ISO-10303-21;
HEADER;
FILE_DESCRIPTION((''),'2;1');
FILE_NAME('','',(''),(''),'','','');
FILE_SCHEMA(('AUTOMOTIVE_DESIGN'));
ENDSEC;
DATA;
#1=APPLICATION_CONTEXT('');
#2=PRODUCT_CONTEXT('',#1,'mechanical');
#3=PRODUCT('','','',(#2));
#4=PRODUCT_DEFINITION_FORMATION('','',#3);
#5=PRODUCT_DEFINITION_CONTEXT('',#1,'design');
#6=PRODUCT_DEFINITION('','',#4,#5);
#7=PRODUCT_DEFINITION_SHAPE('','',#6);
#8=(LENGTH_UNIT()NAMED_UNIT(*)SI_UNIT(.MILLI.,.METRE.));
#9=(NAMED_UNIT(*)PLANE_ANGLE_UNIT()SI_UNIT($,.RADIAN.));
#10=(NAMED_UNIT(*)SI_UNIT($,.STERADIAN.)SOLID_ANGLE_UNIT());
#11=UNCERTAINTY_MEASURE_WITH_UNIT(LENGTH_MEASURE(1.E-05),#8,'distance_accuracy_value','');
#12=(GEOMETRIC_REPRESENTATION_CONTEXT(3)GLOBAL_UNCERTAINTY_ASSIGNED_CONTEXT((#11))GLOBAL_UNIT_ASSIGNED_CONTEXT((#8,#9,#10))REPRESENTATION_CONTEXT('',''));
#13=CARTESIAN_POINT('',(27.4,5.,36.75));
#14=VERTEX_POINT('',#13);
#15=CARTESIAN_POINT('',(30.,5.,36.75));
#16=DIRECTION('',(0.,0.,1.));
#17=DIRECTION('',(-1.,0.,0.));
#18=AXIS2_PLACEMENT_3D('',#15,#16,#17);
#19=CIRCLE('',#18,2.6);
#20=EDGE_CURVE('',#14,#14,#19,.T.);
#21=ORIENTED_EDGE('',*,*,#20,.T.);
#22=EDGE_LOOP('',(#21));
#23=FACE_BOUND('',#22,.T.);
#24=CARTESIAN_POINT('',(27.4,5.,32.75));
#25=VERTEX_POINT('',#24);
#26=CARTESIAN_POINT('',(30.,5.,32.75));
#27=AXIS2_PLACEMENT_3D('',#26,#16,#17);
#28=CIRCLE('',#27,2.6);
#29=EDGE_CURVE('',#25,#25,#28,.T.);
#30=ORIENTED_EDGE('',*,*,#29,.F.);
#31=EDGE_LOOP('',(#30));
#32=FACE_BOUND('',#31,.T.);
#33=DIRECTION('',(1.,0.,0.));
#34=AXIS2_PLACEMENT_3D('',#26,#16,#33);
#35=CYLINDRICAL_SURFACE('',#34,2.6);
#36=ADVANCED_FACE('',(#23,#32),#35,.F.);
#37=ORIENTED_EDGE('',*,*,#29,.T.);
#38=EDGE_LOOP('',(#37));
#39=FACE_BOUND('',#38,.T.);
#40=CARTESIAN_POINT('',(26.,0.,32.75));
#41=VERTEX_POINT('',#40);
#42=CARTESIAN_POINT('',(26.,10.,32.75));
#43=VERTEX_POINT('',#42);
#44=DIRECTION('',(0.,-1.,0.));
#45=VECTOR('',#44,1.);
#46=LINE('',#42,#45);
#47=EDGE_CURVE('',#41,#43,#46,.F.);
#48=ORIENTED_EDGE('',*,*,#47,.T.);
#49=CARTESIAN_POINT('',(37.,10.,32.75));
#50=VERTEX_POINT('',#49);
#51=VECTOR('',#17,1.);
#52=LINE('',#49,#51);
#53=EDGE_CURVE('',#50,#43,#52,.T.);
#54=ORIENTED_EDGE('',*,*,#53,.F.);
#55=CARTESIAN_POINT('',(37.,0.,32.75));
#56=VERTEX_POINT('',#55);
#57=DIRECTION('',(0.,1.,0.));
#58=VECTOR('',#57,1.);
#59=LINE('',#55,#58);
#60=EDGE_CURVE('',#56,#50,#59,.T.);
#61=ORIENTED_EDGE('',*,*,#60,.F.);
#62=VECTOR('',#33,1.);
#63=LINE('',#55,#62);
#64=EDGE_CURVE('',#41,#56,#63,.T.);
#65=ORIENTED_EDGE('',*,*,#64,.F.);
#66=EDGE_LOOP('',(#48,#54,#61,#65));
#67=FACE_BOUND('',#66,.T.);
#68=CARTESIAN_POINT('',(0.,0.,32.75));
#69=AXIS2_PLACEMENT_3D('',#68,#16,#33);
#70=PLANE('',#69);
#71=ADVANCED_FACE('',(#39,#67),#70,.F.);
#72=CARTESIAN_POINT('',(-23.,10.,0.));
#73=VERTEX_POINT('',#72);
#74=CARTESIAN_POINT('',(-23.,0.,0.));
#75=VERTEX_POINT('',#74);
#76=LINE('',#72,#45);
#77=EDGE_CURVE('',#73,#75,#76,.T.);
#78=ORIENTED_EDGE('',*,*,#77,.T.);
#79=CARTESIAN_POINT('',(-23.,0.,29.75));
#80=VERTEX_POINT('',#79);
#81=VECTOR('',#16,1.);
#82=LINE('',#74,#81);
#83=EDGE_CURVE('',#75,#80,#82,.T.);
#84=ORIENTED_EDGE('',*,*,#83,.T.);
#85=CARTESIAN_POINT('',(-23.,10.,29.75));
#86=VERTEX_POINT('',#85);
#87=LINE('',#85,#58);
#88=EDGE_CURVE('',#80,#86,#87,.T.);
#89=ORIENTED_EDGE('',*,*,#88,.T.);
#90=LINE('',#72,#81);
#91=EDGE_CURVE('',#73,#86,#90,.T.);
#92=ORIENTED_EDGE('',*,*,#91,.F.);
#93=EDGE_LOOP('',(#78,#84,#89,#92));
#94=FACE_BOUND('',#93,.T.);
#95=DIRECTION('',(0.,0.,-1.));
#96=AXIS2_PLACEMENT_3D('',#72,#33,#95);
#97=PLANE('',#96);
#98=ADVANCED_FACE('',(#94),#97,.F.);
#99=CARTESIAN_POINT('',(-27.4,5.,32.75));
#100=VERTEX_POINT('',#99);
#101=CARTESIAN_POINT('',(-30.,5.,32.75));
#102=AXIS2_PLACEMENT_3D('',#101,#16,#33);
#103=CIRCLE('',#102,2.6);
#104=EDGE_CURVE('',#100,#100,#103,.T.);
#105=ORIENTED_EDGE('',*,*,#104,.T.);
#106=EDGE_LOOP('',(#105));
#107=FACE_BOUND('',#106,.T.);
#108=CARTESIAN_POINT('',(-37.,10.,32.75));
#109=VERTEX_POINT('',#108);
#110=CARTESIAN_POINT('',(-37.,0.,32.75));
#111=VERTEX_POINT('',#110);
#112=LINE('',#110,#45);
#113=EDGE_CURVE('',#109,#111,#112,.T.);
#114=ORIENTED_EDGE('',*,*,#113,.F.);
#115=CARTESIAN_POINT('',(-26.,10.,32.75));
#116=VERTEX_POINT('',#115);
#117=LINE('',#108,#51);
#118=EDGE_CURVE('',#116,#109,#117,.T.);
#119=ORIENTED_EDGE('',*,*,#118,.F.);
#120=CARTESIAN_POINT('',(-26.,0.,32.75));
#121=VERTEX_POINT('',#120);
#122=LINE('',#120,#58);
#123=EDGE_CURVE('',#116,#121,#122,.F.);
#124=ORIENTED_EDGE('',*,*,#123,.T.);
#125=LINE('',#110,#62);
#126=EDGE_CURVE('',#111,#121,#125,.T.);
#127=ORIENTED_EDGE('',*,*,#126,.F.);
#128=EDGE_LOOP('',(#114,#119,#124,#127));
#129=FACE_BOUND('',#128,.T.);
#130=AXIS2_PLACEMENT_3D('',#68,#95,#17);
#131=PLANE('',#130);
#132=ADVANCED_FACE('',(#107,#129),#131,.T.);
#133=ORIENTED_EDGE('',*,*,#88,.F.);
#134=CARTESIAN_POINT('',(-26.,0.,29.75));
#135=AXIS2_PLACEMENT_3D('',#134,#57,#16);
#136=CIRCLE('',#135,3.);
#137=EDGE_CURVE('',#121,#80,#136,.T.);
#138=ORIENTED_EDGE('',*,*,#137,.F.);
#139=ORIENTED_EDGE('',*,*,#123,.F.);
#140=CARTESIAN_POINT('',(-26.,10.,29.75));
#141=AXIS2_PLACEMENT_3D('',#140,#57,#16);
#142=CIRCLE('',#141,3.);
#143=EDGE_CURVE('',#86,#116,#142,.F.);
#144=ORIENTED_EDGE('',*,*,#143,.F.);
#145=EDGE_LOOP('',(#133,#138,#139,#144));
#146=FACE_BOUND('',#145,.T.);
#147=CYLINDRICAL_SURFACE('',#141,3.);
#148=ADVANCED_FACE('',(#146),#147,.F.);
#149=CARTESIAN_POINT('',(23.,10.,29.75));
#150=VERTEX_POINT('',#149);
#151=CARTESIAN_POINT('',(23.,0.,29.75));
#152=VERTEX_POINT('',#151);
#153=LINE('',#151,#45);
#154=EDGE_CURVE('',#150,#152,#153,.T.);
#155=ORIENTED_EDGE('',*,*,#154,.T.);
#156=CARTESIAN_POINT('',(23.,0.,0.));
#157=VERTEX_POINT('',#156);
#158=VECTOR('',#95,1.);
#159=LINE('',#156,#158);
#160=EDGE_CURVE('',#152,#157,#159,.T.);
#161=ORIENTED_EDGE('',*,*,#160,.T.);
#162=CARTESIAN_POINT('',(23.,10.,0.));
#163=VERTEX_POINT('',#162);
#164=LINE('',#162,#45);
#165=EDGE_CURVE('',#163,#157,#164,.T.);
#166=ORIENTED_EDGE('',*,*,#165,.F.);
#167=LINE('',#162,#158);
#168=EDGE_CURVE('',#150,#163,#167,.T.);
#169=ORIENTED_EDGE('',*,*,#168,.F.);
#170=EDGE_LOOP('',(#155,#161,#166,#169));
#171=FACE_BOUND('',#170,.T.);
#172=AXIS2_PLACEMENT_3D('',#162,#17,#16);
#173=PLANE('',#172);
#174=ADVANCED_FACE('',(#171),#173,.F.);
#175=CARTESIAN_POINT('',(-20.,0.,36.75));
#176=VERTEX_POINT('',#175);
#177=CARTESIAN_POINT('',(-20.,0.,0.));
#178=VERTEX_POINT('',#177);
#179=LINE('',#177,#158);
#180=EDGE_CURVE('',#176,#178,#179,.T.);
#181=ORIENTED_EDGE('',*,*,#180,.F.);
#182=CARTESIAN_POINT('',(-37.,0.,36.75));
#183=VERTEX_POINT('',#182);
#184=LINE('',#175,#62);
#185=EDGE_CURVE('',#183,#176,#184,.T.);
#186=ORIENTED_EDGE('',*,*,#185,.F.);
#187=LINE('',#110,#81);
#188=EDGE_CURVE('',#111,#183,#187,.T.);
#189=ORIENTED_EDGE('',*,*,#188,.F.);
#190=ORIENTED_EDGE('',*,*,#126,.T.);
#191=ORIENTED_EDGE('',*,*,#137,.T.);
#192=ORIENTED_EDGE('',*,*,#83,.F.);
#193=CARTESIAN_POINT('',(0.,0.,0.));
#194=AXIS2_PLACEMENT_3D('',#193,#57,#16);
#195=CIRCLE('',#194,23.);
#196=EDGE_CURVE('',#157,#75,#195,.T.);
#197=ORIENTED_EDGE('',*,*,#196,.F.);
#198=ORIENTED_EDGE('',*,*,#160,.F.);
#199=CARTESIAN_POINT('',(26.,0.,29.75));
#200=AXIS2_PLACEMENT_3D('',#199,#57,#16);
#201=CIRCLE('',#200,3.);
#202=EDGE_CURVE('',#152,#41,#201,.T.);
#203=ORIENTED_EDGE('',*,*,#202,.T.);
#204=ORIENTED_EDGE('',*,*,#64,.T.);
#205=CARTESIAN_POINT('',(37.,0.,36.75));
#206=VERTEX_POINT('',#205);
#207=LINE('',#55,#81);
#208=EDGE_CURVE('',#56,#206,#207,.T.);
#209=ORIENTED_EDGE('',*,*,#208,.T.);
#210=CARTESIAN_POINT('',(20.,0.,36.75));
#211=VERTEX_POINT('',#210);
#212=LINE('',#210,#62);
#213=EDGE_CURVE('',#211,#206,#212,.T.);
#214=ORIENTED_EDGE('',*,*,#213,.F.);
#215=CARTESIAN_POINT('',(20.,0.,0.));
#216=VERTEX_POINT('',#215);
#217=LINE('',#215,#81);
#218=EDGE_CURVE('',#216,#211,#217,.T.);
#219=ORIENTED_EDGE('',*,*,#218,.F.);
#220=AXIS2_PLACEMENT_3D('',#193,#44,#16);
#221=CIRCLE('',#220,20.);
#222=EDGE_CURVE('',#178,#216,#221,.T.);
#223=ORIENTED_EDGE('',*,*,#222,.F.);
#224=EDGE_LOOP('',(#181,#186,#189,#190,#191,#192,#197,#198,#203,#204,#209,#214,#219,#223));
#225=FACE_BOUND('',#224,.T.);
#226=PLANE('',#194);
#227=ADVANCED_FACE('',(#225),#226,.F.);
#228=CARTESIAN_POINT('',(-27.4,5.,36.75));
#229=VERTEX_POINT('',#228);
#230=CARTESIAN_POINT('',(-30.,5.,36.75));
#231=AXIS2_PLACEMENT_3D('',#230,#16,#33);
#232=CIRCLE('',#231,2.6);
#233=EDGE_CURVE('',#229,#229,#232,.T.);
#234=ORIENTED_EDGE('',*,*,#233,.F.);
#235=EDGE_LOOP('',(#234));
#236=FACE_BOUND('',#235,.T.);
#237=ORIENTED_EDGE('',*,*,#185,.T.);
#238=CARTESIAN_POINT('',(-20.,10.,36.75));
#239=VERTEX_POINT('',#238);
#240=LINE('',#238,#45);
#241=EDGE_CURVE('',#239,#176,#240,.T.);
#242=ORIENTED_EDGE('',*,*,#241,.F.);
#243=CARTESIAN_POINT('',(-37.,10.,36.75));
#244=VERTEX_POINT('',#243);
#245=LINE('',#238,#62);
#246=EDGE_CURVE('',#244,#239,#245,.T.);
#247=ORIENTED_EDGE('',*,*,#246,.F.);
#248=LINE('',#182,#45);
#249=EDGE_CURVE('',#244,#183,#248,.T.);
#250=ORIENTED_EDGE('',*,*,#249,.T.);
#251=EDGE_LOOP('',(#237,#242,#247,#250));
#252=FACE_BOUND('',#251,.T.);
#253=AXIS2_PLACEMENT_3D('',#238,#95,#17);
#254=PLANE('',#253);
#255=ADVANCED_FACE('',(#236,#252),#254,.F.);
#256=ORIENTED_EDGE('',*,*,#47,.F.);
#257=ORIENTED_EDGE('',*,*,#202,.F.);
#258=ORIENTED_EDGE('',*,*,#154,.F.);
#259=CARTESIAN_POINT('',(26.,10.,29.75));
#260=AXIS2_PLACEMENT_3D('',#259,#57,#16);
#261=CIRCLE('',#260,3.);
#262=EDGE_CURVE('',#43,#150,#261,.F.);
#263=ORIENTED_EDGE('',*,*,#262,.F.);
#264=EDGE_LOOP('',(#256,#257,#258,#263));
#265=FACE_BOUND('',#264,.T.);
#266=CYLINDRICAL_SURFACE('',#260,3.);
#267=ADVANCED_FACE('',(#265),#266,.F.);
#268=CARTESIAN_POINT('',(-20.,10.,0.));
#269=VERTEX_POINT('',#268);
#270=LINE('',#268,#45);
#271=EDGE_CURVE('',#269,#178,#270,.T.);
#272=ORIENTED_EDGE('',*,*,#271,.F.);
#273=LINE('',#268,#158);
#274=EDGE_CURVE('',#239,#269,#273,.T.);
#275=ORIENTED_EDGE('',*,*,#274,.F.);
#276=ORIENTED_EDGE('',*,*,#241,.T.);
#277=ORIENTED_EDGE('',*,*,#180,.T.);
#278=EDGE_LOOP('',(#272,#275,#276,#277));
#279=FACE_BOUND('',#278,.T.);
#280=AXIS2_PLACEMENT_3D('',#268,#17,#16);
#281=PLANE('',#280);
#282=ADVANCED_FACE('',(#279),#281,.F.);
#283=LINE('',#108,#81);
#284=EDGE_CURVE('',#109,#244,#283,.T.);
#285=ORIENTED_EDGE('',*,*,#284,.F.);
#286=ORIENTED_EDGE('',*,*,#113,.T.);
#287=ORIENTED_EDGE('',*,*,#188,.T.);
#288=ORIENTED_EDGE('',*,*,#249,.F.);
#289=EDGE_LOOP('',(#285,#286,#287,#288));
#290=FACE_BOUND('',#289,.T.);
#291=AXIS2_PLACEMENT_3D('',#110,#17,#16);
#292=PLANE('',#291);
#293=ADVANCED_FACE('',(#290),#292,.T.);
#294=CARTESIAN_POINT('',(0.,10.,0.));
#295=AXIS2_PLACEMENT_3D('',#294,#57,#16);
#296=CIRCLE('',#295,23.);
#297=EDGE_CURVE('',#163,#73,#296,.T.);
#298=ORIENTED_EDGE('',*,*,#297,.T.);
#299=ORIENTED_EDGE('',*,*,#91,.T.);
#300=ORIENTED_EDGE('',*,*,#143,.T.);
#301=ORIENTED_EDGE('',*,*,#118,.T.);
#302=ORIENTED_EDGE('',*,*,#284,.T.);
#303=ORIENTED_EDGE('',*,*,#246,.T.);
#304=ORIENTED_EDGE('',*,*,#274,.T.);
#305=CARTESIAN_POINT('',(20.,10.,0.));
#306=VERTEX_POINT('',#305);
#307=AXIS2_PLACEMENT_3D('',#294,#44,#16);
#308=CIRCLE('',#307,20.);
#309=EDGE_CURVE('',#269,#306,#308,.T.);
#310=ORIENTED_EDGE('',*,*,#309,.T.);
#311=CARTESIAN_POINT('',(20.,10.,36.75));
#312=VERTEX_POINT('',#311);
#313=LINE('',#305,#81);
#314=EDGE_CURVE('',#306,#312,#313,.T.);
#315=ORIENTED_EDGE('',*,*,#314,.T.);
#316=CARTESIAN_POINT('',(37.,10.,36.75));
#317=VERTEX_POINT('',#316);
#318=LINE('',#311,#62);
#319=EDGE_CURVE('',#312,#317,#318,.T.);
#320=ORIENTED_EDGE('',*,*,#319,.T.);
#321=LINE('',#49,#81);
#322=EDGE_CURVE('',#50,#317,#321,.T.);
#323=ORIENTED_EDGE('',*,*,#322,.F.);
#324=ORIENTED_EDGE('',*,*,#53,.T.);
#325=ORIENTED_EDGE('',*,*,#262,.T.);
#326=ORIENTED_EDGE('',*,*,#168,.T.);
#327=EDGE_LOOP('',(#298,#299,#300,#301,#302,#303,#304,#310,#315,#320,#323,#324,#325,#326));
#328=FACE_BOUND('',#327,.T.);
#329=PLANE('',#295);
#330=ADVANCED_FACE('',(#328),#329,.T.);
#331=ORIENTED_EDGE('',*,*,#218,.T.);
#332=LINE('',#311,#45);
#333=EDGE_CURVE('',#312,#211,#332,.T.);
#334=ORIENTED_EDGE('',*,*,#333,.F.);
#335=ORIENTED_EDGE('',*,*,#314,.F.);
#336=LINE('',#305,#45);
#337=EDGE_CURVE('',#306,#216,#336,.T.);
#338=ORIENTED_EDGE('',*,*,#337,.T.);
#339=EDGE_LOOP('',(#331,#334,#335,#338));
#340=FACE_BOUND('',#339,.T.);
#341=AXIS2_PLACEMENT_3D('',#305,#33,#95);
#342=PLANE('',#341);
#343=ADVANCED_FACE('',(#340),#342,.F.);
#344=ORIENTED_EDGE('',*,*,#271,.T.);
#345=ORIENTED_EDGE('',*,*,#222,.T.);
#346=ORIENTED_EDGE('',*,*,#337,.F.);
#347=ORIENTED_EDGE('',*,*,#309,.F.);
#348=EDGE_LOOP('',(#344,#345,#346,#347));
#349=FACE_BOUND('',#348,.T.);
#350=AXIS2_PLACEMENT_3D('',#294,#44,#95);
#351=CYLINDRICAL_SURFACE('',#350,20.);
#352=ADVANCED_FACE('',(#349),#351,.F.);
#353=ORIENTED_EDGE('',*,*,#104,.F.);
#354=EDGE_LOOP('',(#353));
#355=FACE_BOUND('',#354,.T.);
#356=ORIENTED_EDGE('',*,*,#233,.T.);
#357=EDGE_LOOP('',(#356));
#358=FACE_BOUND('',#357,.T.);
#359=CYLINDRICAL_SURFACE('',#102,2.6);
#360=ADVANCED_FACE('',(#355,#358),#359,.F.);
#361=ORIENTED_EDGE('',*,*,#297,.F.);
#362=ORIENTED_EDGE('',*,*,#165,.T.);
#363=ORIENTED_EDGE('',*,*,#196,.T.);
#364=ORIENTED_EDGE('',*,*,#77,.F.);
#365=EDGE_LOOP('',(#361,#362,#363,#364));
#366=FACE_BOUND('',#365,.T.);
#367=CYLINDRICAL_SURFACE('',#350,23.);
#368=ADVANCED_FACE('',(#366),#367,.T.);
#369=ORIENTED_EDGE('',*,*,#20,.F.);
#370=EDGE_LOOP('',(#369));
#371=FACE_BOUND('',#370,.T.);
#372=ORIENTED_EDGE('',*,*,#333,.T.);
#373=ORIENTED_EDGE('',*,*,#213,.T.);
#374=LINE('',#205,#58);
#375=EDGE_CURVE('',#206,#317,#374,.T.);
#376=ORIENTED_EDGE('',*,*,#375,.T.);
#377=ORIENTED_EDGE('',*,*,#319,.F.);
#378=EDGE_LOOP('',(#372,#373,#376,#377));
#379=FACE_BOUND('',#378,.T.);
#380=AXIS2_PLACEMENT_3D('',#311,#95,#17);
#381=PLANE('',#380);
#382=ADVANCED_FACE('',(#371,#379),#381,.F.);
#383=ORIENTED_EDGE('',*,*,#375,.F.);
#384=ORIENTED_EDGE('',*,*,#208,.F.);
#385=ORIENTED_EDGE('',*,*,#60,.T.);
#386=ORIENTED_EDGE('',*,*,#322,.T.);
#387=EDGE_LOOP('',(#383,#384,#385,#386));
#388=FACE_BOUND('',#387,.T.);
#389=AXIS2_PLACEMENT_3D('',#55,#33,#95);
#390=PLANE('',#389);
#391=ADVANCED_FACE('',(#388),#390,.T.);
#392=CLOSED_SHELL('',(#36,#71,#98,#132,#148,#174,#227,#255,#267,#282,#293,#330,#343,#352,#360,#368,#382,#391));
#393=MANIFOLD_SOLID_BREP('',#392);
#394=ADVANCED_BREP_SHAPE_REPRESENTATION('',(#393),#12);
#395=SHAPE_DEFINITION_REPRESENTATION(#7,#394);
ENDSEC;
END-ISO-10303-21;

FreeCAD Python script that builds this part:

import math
import FreeCAD as App
import Part
import Sketcher
from FreeCAD import Vector
Q = App.Units.Quantity


def edges_at(feature, points):
    """Names of the edges that pass closest to the given points."""
    edges = feature.Shape.Edges
    near = lambda p: min(range(len(edges)), key=lambda i: edges[i].distToShape(Part.Vertex(*p))[0])
    return sorted({f"Edge{near(p) + 1}" for p in points})

doc = App.newDocument("Part")
body = doc.addObject("PartDesign::Body", "Body")

# Sketch on XZ plane
sketch1 = body.newObject("Sketcher::SketchObject", "Sketch")
sketch1.AttachmentSupport = (doc.getObject("XZ_Plane"), [""])
sketch1.MapMode = "FlatFace"
sketch1.addGeometry([
    Part.LineSegment(Vector(-23, 0, 0), Vector(-23, 36.8, 0)),  # 0
    Part.LineSegment(Vector(-23, 36.8, 0), Vector(-20, 36.8, 0)),  # 1
    Part.LineSegment(Vector(-20, 36.8, 0), Vector(-20, 0, 0)),  # 2
    Part.ArcOfCircle(Part.Circle(Vector(0, 0, 0), Vector(0, 0, 1), 20), math.radians(180), math.radians(360)),  # 3
    Part.LineSegment(Vector(20, 0, 0), Vector(20, 36.8, 0)),  # 4
    Part.LineSegment(Vector(20, 36.8, 0), Vector(23, 36.8, 0)),  # 5
    Part.LineSegment(Vector(23, 36.8, 0), Vector(23, 0, 0)),  # 6
    Part.ArcOfCircle(Part.Circle(Vector(0, 0, 0), Vector(0, 0, 1), 23), math.radians(180), math.radians(360)),  # 7
], False)
sketch1.addConstraint([
    Sketcher.Constraint("Coincident", 0, 2, 1, 1),
    Sketcher.Constraint("Coincident", 1, 2, 2, 1),
    Sketcher.Constraint("Tangent", 2, 2, 3, 1),
    Sketcher.Constraint("Tangent", 3, 2, 4, 1),
    Sketcher.Constraint("Coincident", 4, 2, 5, 1),
    Sketcher.Constraint("Coincident", 5, 2, 6, 1),
    Sketcher.Constraint("Tangent", 6, 2, 7, 2),
    Sketcher.Constraint("Tangent", 7, 1, 0, 1),
    Sketcher.Constraint("Vertical", 0),
    Sketcher.Constraint("Horizontal", 1),
    Sketcher.Constraint("Vertical", 2),
    Sketcher.Constraint("Vertical", 4),
    Sketcher.Constraint("Horizontal", 5),
    Sketcher.Constraint("Vertical", 6),
    Sketcher.Constraint("Coincident", 3, 3, -1, 1),
    Sketcher.Constraint("Coincident", 7, 3, -1, 1),
    Sketcher.Constraint("Horizontal", 1, 2, 4, 2),
    Sketcher.Constraint("Radius", 3, Q("20 mm")),
    Sketcher.Constraint("Radius", 7, Q("23 mm")),
    Sketcher.Constraint("DistanceY", 0, 1, 0, 2, Q("36.75 mm")),
])
pad1 = body.newObject("PartDesign::Pad", "Pad")
pad1.Profile = sketch1
pad1.Length = 10
pad1.Reversed = True

# Sketch on XY plane
sketch2 = body.newObject("Sketcher::SketchObject", "Sketch001")
sketch2.AttachmentSupport = (doc.getObject("XY_Plane"), [""])
sketch2.MapMode = "FlatFace"
sketch2.AttachmentOffset = App.Placement(Vector(0, 0, 36.75), App.Rotation())
sketch2.addGeometry([
    Part.LineSegment(Vector(-37, 10, 0), Vector(-37, 0, 0)),  # 0
    Part.LineSegment(Vector(-37, 0, 0), Vector(-23, 0, 0)),  # 1
    Part.LineSegment(Vector(-23, 0, 0), Vector(-23, 10, 0)),  # 2
    Part.LineSegment(Vector(-23, 10, 0), Vector(-37, 10, 0)),  # 3
    Part.Circle(Vector(-30, 5, 0), Vector(0, 0, 1), 2.6),  # 4
    Part.LineSegment(Vector(23, 10, 0), Vector(23, 0, 0)),  # 5
    Part.LineSegment(Vector(23, 0, 0), Vector(37, 0, 0)),  # 6
    Part.LineSegment(Vector(37, 0, 0), Vector(37, 10, 0)),  # 7
    Part.LineSegment(Vector(37, 10, 0), Vector(23, 10, 0)),  # 8
    Part.Circle(Vector(30, 5, 0), Vector(0, 0, 1), 2.6),  # 9
], False)
sketch2.addConstraint([
    Sketcher.Constraint("Coincident", 0, 2, 1, 1),
    Sketcher.Constraint("Coincident", 1, 2, 2, 1),
    Sketcher.Constraint("Coincident", 2, 2, 3, 1),
    Sketcher.Constraint("Coincident", 3, 2, 0, 1),
    Sketcher.Constraint("Coincident", 5, 2, 6, 1),
    Sketcher.Constraint("Coincident", 6, 2, 7, 1),
    Sketcher.Constraint("Coincident", 7, 2, 8, 1),
    Sketcher.Constraint("Coincident", 8, 2, 5, 1),
    Sketcher.Constraint("Vertical", 0),
    Sketcher.Constraint("Horizontal", 1),
    Sketcher.Constraint("Vertical", 2),
    Sketcher.Constraint("Horizontal", 3),
    Sketcher.Constraint("Vertical", 5),
    Sketcher.Constraint("Horizontal", 6),
    Sketcher.Constraint("Vertical", 7),
    Sketcher.Constraint("Horizontal", 8),
    Sketcher.Constraint("Equal", 4, 9),
    Sketcher.Constraint("Symmetric", 1, 2, 5, 2, -1, 1),
    Sketcher.Constraint("Symmetric", 4, 3, 9, 3, -2),
    Sketcher.Constraint("Symmetric", 0, 2, 6, 2, -2),
    Sketcher.Constraint("Horizontal", 3, 2, 7, 2),
    Sketcher.Constraint("Diameter", 4, Q("5.2 mm")),
    Sketcher.Constraint("DistanceX", 1, 1, 1, 2, Q("14 mm")),
    Sketcher.Constraint("DistanceY", 0, 2, 0, 1, Q("10 mm")),
    Sketcher.Constraint("DistanceX", 4, 3, -1, 1, Q("30 mm")),
    Sketcher.Constraint("DistanceY", -1, 1, 4, 3, Q("5 mm")),
    Sketcher.Constraint("DistanceX", 0, 2, -1, 1, Q("37 mm")),
])
pad2 = body.newObject("PartDesign::Pad", "Pad001")
pad2.Profile = sketch2
pad2.Length = 4
pad2.Reversed = True
doc.recompute()

fillet = body.newObject("PartDesign::Fillet", "Fillet")
fillet.Base = (pad2, edges_at(pad2, [(-23, 5, 32.75), (23, 5, 32.75)]))
fillet.Radius = 3

doc.recompute()
